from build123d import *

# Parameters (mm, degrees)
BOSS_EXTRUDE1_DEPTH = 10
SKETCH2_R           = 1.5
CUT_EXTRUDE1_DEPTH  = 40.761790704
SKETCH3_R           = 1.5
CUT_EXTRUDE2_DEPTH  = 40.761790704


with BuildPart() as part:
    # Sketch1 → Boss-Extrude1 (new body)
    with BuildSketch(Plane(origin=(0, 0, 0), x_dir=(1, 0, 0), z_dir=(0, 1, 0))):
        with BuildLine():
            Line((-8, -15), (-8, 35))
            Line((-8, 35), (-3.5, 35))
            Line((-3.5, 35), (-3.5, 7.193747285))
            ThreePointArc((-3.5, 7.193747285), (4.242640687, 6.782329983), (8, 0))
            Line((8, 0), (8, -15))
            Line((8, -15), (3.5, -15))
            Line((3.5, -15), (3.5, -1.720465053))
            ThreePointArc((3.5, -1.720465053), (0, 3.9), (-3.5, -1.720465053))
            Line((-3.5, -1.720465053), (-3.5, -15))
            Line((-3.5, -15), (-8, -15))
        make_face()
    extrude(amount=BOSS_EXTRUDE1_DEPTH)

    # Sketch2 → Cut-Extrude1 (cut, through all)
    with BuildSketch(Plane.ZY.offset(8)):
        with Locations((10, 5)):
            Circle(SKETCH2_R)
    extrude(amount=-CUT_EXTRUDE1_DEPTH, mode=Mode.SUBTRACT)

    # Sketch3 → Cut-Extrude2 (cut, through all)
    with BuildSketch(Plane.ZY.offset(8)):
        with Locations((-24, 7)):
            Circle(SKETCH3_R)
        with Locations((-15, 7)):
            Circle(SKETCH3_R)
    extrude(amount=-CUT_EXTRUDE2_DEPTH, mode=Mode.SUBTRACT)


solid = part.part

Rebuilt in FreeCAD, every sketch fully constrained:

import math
import FreeCAD as App
import Part
import Sketcher
from FreeCAD import Vector

doc = App.newDocument("Part")
body = doc.addObject("PartDesign::Body", "Body")

# Sketch on XZ plane
sketch1 = body.newObject("Sketcher::SketchObject", "Sketch")
sketch1.AttachmentSupport = (doc.getObject("XZ_Plane"), [""])
sketch1.MapMode = "FlatFace"
sketch1.addGeometry(Part.LineSegment(Vector(-8, -35, 0), Vector(-8, 15, 0)), False)
sketch1.addGeometry(Part.LineSegment(Vector(-8, 15, 0), Vector(-3.5, 15, 0)), False)
sketch1.addGeometry(Part.LineSegment(Vector(-3.5, 15, 0), Vector(-3.5, 1.720465, 0)), False)
sketch1.addGeometry(Part.ArcOfCircle(Part.Circle(Vector(0, 0, 0), Vector(0, 0, 1), 3.9), math.radians(153.823048), math.radians(386.176952)), False)
sketch1.addGeometry(Part.LineSegment(Vector(3.5, 1.720465, 0), Vector(3.5, 15, 0)), False)
sketch1.addGeometry(Part.LineSegment(Vector(3.5, 15, 0), Vector(8, 15, 0)), False)
sketch1.addGeometry(Part.LineSegment(Vector(8, 15, 0), Vector(8, 0, 0)), False)
sketch1.addGeometry(Part.ArcOfCircle(Part.Circle(Vector(0, 0, 0), Vector(0, 0, 1), 8), math.radians(-115.94448), math.radians(0)), False)
sketch1.addGeometry(Part.LineSegment(Vector(-3.5, -7.193747, 0), Vector(-3.5, -35, 0)), False)
sketch1.addGeometry(Part.LineSegment(Vector(-3.5, -35, 0), Vector(-8, -35, 0)), False)
sketch1.addConstraint(Sketcher.Constraint("Coincident", 0, 2, 1, 1))
sketch1.addConstraint(Sketcher.Constraint("Coincident", 1, 2, 2, 1))
sketch1.addConstraint(Sketcher.Constraint("Coincident", 2, 2, 3, 1))
sketch1.addConstraint(Sketcher.Constraint("Coincident", 3, 2, 4, 1))
sketch1.addConstraint(Sketcher.Constraint("Coincident", 4, 2, 5, 1))
sketch1.addConstraint(Sketcher.Constraint("Coincident", 5, 2, 6, 1))
sketch1.addConstraint(Sketcher.Constraint("Tangent", 6, 2, 7, 2))
sketch1.addConstraint(Sketcher.Constraint("Coincident", 7, 1, 8, 1))
sketch1.addConstraint(Sketcher.Constraint("Coincident", 8, 2, 9, 1))
sketch1.addConstraint(Sketcher.Constraint("Coincident", 9, 2, 0, 1))
sketch1.addConstraint(Sketcher.Constraint("Vertical", 0))
sketch1.addConstraint(Sketcher.Constraint("Horizontal", 1))
sketch1.addConstraint(Sketcher.Constraint("Vertical", 2))
sketch1.addConstraint(Sketcher.Constraint("Vertical", 4))
sketch1.addConstraint(Sketcher.Constraint("Horizontal", 5))
sketch1.addConstraint(Sketcher.Constraint("Vertical", 6))
sketch1.addConstraint(Sketcher.Constraint("Vertical", 8))
sketch1.addConstraint(Sketcher.Constraint("Horizontal", 9))
sketch1.addConstraint(Sketcher.Constraint("Coincident", 3, 3, -1, 1))
sketch1.addConstraint(Sketcher.Constraint("Coincident", 7, 3, -1, 1))
sketch1.addConstraint(Sketcher.Constraint("Symmetric", 1, 2, 4, 2, -2))
sketch1.addConstraint(Sketcher.Constraint("Vertical", 2, 2, 7, 1))
sketch1.addConstraint(Sketcher.Constraint("Equal", 1, 5))
sketch1.addConstraint(Sketcher.Constraint("Radius", 7, 8.0))
sketch1.addConstraint(Sketcher.Constraint("Radius", 3, 3.9))
sketch1.addConstraint(Sketcher.Constraint("DistanceY", 0, 1, 0, 2, 50.0))
sketch1.addConstraint(Sketcher.Constraint("DistanceY", 6, 2, 6, 1, 15.0))
sketch1.addConstraint(Sketcher.Constraint("DistanceX", 1, 1, 1, 2, 4.5))
pad1 = body.newObject("PartDesign::Pad", "Pad")
pad1.Profile = sketch1
pad1.Length = 10
pad1.Reversed = True

# Sketch on YZ plane
sketch2 = body.newObject("Sketcher::SketchObject", "Sketch001")
sketch2.AttachmentSupport = (doc.getObject("YZ_Plane"), [""])
sketch2.MapMode = "FlatFace"
sketch2.AttachmentOffset = App.Placement(Vector(0, 0, -8), App.Rotation())
sketch2.addGeometry(Part.Circle(Vector(5, 10, 0), Vector(0, 0, 1), 1.5), False)
sketch2.addConstraint(Sketcher.Constraint("Diameter", 0, 3.0))
sketch2.addConstraint(Sketcher.Constraint("DistanceX", -1, 1, 0, 3, 5.0))
sketch2.addConstraint(Sketcher.Constraint("DistanceY", -1, 1, 0, 3, 10.0))
pocket1 = body.newObject("PartDesign::Pocket", "Pocket")
pocket1.Profile = sketch2
pocket1.Type = "ThroughAll"
pocket1.Reversed = True

# Sketch on YZ plane
sketch3 = body.newObject("Sketcher::SketchObject", "Sketch002")
sketch3.AttachmentSupport = (doc.getObject("YZ_Plane"), [""])
sketch3.MapMode = "FlatFace"
sketch3.AttachmentOffset = App.Placement(Vector(0, 0, -8), App.Rotation())
sketch3.addGeometry(Part.Circle(Vector(7, -24, 0), Vector(0, 0, 1), 1.5), False)
sketch3.addGeometry(Part.Circle(Vector(7, -15, 0), Vector(0, 0, 1), 1.5), False)
sketch3.addConstraint(Sketcher.Constraint("Equal", 0, 1))
sketch3.addConstraint(Sketcher.Constraint("Vertical", 0, 3, 1, 3))
sketch3.addConstraint(Sketcher.Constraint("Diameter", 0, 3.0))
sketch3.addConstraint(Sketcher.Constraint("DistanceX", -1, 1, 0, 3, 7.0))
sketch3.addConstraint(Sketcher.Constraint("DistanceY", 0, 3, -1, 1, 24.0))
sketch3.addConstraint(Sketcher.Constraint("DistanceY", 1, 3, -1, 1, 15.0))
pocket2 = body.newObject("PartDesign::Pocket", "Pocket001")
pocket2.Profile = sketch3
pocket2.Type = "ThroughAll"
pocket2.Reversed = True

doc.recompute()
